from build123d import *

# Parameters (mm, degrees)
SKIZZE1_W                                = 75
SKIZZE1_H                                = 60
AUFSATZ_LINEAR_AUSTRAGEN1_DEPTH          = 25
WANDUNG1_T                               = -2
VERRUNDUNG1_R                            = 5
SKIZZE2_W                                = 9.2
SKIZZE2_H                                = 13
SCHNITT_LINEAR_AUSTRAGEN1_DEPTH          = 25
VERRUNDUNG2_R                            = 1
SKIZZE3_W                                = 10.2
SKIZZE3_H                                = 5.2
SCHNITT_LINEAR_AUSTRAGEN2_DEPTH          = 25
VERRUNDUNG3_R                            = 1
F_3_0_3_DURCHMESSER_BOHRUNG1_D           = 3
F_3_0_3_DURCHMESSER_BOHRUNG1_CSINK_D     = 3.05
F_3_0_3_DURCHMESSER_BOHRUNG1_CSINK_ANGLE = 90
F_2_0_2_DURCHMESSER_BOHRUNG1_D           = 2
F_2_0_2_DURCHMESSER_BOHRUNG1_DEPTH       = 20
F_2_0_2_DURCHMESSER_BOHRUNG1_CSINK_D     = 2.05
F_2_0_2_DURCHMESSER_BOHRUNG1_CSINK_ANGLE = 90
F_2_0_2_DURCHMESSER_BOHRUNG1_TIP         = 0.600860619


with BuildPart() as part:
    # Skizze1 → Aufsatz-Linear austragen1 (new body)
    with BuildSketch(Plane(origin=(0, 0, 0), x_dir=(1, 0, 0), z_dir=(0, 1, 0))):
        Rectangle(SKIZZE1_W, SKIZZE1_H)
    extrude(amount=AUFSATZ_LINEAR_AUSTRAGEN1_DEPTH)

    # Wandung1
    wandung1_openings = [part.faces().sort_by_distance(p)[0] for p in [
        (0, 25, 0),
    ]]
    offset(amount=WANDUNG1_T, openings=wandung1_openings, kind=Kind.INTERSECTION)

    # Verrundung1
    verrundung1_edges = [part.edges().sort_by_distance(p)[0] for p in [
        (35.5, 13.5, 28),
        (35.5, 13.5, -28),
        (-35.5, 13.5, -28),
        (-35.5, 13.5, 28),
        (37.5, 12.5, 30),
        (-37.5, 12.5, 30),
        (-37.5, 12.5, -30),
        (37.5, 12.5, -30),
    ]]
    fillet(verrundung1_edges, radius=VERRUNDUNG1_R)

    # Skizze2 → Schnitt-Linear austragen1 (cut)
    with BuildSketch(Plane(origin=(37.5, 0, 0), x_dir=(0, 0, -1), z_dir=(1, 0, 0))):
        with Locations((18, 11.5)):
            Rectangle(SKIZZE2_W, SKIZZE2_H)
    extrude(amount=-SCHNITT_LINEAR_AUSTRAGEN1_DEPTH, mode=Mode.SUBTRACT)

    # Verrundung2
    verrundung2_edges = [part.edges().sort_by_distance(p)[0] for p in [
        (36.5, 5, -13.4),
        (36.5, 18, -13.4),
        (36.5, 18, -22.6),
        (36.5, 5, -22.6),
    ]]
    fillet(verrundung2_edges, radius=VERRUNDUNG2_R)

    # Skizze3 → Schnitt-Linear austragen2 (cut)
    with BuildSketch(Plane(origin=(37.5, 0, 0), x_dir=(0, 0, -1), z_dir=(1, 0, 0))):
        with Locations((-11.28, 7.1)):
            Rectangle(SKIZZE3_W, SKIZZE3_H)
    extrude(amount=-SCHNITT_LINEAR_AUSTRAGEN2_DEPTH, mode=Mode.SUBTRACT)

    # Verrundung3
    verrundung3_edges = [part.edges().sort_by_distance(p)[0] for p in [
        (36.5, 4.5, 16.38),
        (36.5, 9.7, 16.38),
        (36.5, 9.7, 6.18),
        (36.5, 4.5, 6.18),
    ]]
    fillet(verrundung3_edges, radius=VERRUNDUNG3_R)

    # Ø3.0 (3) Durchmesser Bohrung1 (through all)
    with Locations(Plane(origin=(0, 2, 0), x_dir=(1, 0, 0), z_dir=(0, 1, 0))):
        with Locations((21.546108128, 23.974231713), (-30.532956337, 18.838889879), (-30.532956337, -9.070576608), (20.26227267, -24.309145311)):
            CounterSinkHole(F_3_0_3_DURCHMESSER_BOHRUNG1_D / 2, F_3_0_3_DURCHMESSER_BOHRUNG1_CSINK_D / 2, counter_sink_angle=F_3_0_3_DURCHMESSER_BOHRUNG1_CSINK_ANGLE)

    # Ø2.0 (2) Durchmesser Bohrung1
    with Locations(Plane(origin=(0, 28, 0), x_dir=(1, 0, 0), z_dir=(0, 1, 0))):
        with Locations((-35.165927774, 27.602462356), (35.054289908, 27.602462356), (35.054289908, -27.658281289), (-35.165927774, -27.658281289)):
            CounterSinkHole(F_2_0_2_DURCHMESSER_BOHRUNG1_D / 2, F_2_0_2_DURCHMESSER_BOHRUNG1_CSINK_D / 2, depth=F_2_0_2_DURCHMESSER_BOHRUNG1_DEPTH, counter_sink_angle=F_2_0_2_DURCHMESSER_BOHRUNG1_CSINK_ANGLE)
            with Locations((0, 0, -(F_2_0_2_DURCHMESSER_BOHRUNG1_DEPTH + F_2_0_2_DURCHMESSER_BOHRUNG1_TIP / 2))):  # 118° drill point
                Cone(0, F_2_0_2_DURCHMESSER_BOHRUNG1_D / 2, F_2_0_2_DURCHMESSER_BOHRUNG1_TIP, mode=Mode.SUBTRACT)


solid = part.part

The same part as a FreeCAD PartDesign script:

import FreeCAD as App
import Part
import Sketcher

V = App.Vector


def edges_at(feature, points):
    """Names of the edges that pass closest to the given points."""
    edges = feature.Shape.Edges
    near = lambda p: min(range(len(edges)), key=lambda i: edges[i].distToShape(Part.Vertex(*p))[0])
    return sorted({f"Edge{near(p) + 1}" for p in points})


def faces_at(feature, points):
    """Names of the faces that lie closest to the given points."""
    faces = feature.Shape.Faces
    near = lambda p: min(range(len(faces)), key=lambda i: faces[i].distToShape(Part.Vertex(*p))[0])
    return sorted({f"Face{near(p) + 1}" for p in points})


def add_polygon(sketch, points):
    """Adds a closed chain of lines whose ends are joined by coincident constraints."""
    first, n = sketch.GeometryCount, len(points)
    for a, b in zip(points, points[1:] + points[:1]):
        sketch.addGeometry(Part.LineSegment(App.Vector(*a, 0), App.Vector(*b, 0)), False)
    for i in range(n):
        sketch.addConstraint(Sketcher.Constraint("Coincident", first + i, 2, first + (i + 1) % n, 1))

doc = App.newDocument("Part")
body = doc.addObject("PartDesign::Body", "Body")

sketch1 = body.newObject("Sketcher::SketchObject", "Sketch")
sketch1.AttachmentSupport = (doc.getObject("XZ_Plane"), [""])
sketch1.MapMode = "FlatFace"
add_polygon(sketch1, [(-37.5, -30), (-37.5, 30), (37.5, 30), (37.5, -30)])
sketch1.addConstraint(Sketcher.Constraint("Vertical", 0))
sketch1.addConstraint(Sketcher.Constraint("Horizontal", 1))
sketch1.addConstraint(Sketcher.Constraint("Vertical", 2))
sketch1.addConstraint(Sketcher.Constraint("Horizontal", 3))
sketch1.addConstraint(Sketcher.Constraint("Symmetric", 0, 2, 2, 2, -1, 1))
sketch1.addConstraint(Sketcher.Constraint("DistanceX", 1, 1, 1, 2, 75.0))
sketch1.addConstraint(Sketcher.Constraint("DistanceY", 0, 1, 0, 2, 60.0))
pad1 = body.newObject("PartDesign::Pad", "Pad")
pad1.Profile = sketch1
pad1.Length = 25
pad1.Reversed = True
doc.recompute()

thickness = body.newObject("PartDesign::Thickness", "Thickness")
thickness.Base = (pad1, faces_at(pad1, [(0, 25, 0)]))
thickness.Value = 2
thickness.Reversed = True
thickness.Join = "Intersection"
doc.recompute()

fillet = body.newObject("PartDesign::Fillet", "Fillet")
fillet.Base = (thickness, edges_at(thickness, [
    (35.5, 13.5, 28),
    (35.5, 13.5, -28),
    (-35.5, 13.5, -28),
    (-35.5, 13.5, 28),
    (37.5, 12.5, 30),
    (-37.5, 12.5, 30),
    (-37.5, 12.5, -30),
    (37.5, 12.5, -30),
]))
fillet.Radius = 5

sketch2 = body.newObject("Sketcher::SketchObject", "Sketch001")
sketch2.AttachmentSupport = (doc.getObject("YZ_Plane"), [""])
sketch2.MapMode = "FlatFace"
sketch2.AttachmentOffset = App.Placement(V(0, 0, 37.5), App.Rotation())
add_polygon(sketch2, [(18, -13.4), (5, -13.4), (5, -22.6), (18, -22.6)])
sketch2.addConstraint(Sketcher.Constraint("Horizontal", 0))
sketch2.addConstraint(Sketcher.Constraint("Vertical", 1))
sketch2.addConstraint(Sketcher.Constraint("Horizontal", 2))
sketch2.addConstraint(Sketcher.Constraint("Vertical", 3))
sketch2.addConstraint(Sketcher.Constraint("DistanceX", 0, 2, 0, 1, 13.0))
sketch2.addConstraint(Sketcher.Constraint("DistanceY", 1, 2, 1, 1, 9.2))
sketch2.addConstraint(Sketcher.Constraint("DistanceX", -1, 1, 0, 2, 5.0))
sketch2.addConstraint(Sketcher.Constraint("DistanceY", 0, 2, -1, 1, 13.4))
pocket1 = body.newObject("PartDesign::Pocket", "Pocket")
pocket1.Profile = sketch2
pocket1.Length = 25
doc.recompute()

fillet2 = body.newObject("PartDesign::Fillet", "Fillet001")
fillet2.Base = (pocket1, edges_at(pocket1, [
    (36.5, 5, -13.4),
    (36.5, 18, -13.4),
    (36.5, 18, -22.6),
    (36.5, 5, -22.6),
]))
fillet2.Radius = 1

sketch3 = body.newObject("Sketcher::SketchObject", "Sketch002")
sketch3.AttachmentSupport = (doc.getObject("YZ_Plane"), [""])
sketch3.MapMode = "FlatFace"
sketch3.AttachmentOffset = App.Placement(V(0, 0, 37.5), App.Rotation())
add_polygon(sketch3, [(9.7, 16.38), (4.5, 16.38), (4.5, 6.18), (9.7, 6.18)])
sketch3.addConstraint(Sketcher.Constraint("Horizontal", 0))
sketch3.addConstraint(Sketcher.Constraint("Vertical", 1))
sketch3.addConstraint(Sketcher.Constraint("Horizontal", 2))
sketch3.addConstraint(Sketcher.Constraint("Vertical", 3))
sketch3.addConstraint(Sketcher.Constraint("DistanceX", 0, 2, 0, 1, 5.2))
sketch3.addConstraint(Sketcher.Constraint("DistanceY", 1, 2, 1, 1, 10.2))
sketch3.addConstraint(Sketcher.Constraint("DistanceX", -1, 1, 0, 2, 4.5))
sketch3.addConstraint(Sketcher.Constraint("DistanceY", -1, 1, 0, 2, 16.38))
pocket2 = body.newObject("PartDesign::Pocket", "Pocket001")
pocket2.Profile = sketch3
pocket2.Length = 25
doc.recompute()

fillet3 = body.newObject("PartDesign::Fillet", "Fillet002")
fillet3.Base = (pocket2, edges_at(pocket2, [
    (36.5, 4.5, 16.38),
    (36.5, 9.7, 16.38),
    (36.5, 9.7, 6.18),
    (36.5, 4.5, 6.18),
]))
fillet3.Radius = 1

sketch4 = body.newObject("Sketcher::SketchObject", "Sketch003")
sketch4.AttachmentSupport = (doc.getObject("XZ_Plane"), [""])
sketch4.MapMode = "FlatFace"
sketch4.AttachmentOffset = App.Placement(V(0, 0, -2), App.Rotation())
sketch4.addGeometry(Part.Circle(V(21.546108, -23.974232, 0), V(0, 0, 1), 1.5), False)
sketch4.addGeometry(Part.Circle(V(-30.532956, -18.83889, 0), V(0, 0, 1), 1.5), False)
sketch4.addGeometry(Part.Circle(V(-30.532956, 9.070577, 0), V(0, 0, 1), 1.5), False)
sketch4.addGeometry(Part.Circle(V(20.262273, 24.309145, 0), V(0, 0, 1), 1.5), False)
sketch4.addConstraint(Sketcher.Constraint("Equal", 0, 1))
sketch4.addConstraint(Sketcher.Constraint("Equal", 1, 2))
sketch4.addConstraint(Sketcher.Constraint("Equal", 2, 3))
sketch4.addConstraint(Sketcher.Constraint("Vertical", 1, 3, 2, 3))
sketch4.addConstraint(Sketcher.Constraint("Diameter", 0, 3.0))
sketch4.addConstraint(Sketcher.Constraint("DistanceX", -1, 1, 0, 3, 21.546108))
sketch4.addConstraint(Sketcher.Constraint("DistanceY", 0, 3, -1, 1, 23.974232))
sketch4.addConstraint(Sketcher.Constraint("DistanceY", 1, 3, -1, 1, 18.83889))
sketch4.addConstraint(Sketcher.Constraint("DistanceY", 0, 3, 2, 3, 33.044808))
sketch4.addConstraint(Sketcher.Constraint("DistanceX", 2, 3, 3, 3, 50.795229))
sketch4.addConstraint(Sketcher.Constraint("DistanceY", 2, 3, 3, 3, 15.238569))
sketch4.addConstraint(Sketcher.Constraint("DistanceX", 1, 3, -1, 1, 30.532956))
doc.recompute()
hole = body.newObject("PartDesign::Hole", "Hole")
hole.Profile = sketch4
hole.ThreadType = "None"
hole.Diameter = 3
hole.DepthType = "ThroughAll"
hole.HoleCutType = "Countersink"
hole.HoleCutDiameter = 3.05
hole.HoleCutCountersinkAngle = 90
hole.Reversed = True

sketch5 = body.newObject("Sketcher::SketchObject", "Sketch004")
sketch5.AttachmentSupport = (doc.getObject("XZ_Plane"), [""])
sketch5.MapMode = "FlatFace"
sketch5.AttachmentOffset = App.Placement(V(0, 0, -28), App.Rotation())
sketch5.addGeometry(Part.Circle(V(-35.165928, -27.602462, 0), V(0, 0, 1), 1), False)
sketch5.addGeometry(Part.Circle(V(35.05429, -27.602462, 0), V(0, 0, 1), 1), False)
sketch5.addGeometry(Part.Circle(V(35.05429, 27.658281, 0), V(0, 0, 1), 1), False)
sketch5.addGeometry(Part.Circle(V(-35.165928, 27.658281, 0), V(0, 0, 1), 1), False)
sketch5.addConstraint(Sketcher.Constraint("Equal", 0, 1))
sketch5.addConstraint(Sketcher.Constraint("Equal", 1, 2))
sketch5.addConstraint(Sketcher.Constraint("Equal", 2, 3))
sketch5.addConstraint(Sketcher.Constraint("Horizontal", 0, 3, 1, 3))
sketch5.addConstraint(Sketcher.Constraint("Horizontal", 2, 3, 3, 3))
sketch5.addConstraint(Sketcher.Constraint("Vertical", 1, 3, 2, 3))
sketch5.addConstraint(Sketcher.Constraint("Vertical", 0, 3, 3, 3))
sketch5.addConstraint(Sketcher.Constraint("Diameter", 0, 2.0))
sketch5.addConstraint(Sketcher.Constraint("DistanceX", -1, 1, 1, 3, 35.05429))
sketch5.addConstraint(Sketcher.Constraint("DistanceY", -1, 1, 2, 3, 27.658281))
sketch5.addConstraint(Sketcher.Constraint("DistanceX", 0, 3, -1, 1, 35.165928))
sketch5.addConstraint(Sketcher.Constraint("DistanceY", 0, 3, -1, 1, 27.602462))
doc.recompute()
hole2 = body.newObject("PartDesign::Hole", "Hole001")
hole2.Profile = sketch5
hole2.ThreadType = "None"
hole2.Diameter = 2
hole2.DepthType = "Dimension"
hole2.Depth = 20
hole2.DrillPoint = "Angled"
hole2.DrillPointAngle = 118
hole2.HoleCutType = "Countersink"
hole2.HoleCutDiameter = 2.05
hole2.HoleCutCountersinkAngle = 90
hole2.Reversed = True

doc.recompute()
